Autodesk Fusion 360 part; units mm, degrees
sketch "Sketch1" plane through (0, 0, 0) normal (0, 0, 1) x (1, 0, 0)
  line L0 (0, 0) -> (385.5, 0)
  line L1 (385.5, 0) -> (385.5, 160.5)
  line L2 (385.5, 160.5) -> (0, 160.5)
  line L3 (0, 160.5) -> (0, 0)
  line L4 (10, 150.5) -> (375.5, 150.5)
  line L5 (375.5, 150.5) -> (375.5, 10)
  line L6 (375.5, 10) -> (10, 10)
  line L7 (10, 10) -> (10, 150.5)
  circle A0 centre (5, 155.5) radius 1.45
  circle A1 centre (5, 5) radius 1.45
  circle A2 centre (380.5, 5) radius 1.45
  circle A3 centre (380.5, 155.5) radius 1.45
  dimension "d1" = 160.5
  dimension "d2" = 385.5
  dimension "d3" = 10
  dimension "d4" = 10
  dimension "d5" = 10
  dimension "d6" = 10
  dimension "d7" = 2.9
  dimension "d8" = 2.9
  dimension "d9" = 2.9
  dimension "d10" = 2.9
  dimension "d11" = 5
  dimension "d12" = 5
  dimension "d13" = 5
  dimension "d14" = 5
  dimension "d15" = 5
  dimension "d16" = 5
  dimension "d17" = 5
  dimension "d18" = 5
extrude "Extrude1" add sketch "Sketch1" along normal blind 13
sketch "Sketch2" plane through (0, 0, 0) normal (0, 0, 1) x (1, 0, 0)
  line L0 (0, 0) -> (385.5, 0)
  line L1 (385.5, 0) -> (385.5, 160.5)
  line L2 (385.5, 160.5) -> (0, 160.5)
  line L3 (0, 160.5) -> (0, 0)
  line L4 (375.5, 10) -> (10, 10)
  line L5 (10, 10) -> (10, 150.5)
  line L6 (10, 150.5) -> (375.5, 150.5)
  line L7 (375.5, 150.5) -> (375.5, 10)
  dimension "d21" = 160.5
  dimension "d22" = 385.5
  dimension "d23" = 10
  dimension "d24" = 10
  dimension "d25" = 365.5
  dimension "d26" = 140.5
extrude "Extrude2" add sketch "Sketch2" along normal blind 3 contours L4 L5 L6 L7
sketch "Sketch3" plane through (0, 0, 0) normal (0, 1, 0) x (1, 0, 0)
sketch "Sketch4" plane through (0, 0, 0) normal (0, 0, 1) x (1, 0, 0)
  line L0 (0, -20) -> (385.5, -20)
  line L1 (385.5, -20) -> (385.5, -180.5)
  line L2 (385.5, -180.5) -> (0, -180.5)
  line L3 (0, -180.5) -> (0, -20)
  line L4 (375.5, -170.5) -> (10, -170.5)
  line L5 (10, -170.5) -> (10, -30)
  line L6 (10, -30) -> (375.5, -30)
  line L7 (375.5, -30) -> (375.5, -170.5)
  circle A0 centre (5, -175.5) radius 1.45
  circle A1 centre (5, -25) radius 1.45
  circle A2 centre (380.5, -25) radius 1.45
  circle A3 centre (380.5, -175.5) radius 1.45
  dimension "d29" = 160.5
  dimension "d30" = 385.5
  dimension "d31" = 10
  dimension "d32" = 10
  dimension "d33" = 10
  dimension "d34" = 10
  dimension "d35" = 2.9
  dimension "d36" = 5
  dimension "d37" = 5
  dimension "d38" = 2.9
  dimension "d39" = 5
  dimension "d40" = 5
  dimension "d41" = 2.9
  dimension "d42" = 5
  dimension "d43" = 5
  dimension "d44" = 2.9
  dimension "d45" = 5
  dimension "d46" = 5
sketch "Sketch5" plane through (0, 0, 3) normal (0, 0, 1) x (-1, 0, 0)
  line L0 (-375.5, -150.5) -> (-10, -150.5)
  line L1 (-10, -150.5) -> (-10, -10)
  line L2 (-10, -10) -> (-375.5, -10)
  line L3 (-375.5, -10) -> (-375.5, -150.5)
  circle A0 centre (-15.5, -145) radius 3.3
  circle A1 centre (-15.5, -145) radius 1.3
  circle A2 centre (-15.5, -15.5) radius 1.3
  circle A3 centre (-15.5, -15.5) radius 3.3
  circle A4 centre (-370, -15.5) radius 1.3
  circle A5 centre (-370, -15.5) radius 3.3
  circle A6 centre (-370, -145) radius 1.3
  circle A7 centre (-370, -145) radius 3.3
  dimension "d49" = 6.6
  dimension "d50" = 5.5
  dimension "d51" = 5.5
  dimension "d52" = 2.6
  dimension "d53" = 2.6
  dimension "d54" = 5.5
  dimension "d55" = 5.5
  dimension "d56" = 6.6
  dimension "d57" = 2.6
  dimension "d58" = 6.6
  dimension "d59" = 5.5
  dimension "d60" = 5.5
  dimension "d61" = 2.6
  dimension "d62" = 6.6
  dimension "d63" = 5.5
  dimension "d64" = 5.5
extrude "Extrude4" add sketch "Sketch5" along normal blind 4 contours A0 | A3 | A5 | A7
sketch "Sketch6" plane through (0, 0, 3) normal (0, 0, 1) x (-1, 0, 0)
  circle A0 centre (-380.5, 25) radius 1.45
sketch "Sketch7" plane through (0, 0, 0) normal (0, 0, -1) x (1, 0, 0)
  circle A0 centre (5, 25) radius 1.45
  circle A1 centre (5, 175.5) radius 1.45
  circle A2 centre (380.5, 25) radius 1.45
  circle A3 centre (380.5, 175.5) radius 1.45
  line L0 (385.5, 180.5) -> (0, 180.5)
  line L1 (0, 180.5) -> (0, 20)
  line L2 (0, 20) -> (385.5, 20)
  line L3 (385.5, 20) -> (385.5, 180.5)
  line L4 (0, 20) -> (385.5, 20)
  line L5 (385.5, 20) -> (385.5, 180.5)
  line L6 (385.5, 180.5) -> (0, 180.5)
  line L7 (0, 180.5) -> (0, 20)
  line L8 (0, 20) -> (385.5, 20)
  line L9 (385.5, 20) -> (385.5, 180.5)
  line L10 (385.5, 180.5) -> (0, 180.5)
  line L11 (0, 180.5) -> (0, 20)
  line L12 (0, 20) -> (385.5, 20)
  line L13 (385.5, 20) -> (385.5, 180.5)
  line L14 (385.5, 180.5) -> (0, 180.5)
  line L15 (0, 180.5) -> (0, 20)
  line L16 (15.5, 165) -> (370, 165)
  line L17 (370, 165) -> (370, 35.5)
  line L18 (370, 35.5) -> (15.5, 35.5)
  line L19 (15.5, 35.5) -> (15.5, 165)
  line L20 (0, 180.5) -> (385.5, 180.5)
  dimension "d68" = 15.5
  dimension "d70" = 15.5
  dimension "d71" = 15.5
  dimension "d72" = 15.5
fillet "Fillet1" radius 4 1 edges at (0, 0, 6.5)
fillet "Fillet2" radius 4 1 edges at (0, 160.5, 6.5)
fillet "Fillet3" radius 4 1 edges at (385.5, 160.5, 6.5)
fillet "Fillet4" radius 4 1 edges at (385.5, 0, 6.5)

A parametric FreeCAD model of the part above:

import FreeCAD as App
import Part
import Sketcher
Q = App.Units.Quantity


def edges_at(feature, points):
    """Names of the edges that pass closest to the given points."""
    edges = feature.Shape.Edges
    near = lambda p: min(range(len(edges)), key=lambda i: edges[i].distToShape(Part.Vertex(*p))[0])
    return sorted({f"Edge{near(p) + 1}" for p in points})


def add_polygon(sketch, points):
    """Adds a closed chain of lines whose ends are joined by coincident constraints."""
    first, n = sketch.GeometryCount, len(points)
    for a, b in zip(points, points[1:] + points[:1]):
        sketch.addGeometry(Part.LineSegment(App.Vector(*a, 0), App.Vector(*b, 0)), False)
    for i in range(n):
        sketch.addConstraint(Sketcher.Constraint("Coincident", first + i, 2, first + (i + 1) % n, 1))

doc = App.newDocument("Part")
body = doc.addObject("PartDesign::Body", "Body")

# Sketch on XY plane
sketch1 = body.newObject("Sketcher::SketchObject", "Sketch")
sketch1.AttachmentSupport = (doc.getObject("XY_Plane"), [""])
sketch1.MapMode = "FlatFace"
add_polygon(sketch1, [(0, 160.5), (0, 0), (385.5, 0), (385.5, 160.5)])  # lines 0-3
sketch1.addGeometry(Part.Circle(App.Vector(5, 5, 0), App.Vector(0, 0, 1), 1.45), False)  # 4
sketch1.addGeometry(Part.Circle(App.Vector(380.5, 5, 0), App.Vector(0, 0, 1), 1.45), False)  # 5
sketch1.addGeometry(Part.Circle(App.Vector(5, 155.5, 0), App.Vector(0, 0, 1), 1.45), False)  # 6
add_polygon(sketch1, [(10, 10), (10, 150.5), (375.5, 150.5), (375.5, 10)])  # lines 7-10
sketch1.addGeometry(Part.Circle(App.Vector(380.5, 155.5, 0), App.Vector(0, 0, 1), 1.45), False)  # 11
sketch1.addConstraint(Sketcher.Constraint("Vertical", 0))
sketch1.addConstraint(Sketcher.Constraint("Horizontal", 1))
sketch1.addConstraint(Sketcher.Constraint("Vertical", 2))
sketch1.addConstraint(Sketcher.Constraint("Horizontal", 3))
sketch1.addConstraint(Sketcher.Constraint("Vertical", 7))
sketch1.addConstraint(Sketcher.Constraint("Horizontal", 8))
sketch1.addConstraint(Sketcher.Constraint("Vertical", 9))
sketch1.addConstraint(Sketcher.Constraint("Horizontal", 10))
sketch1.addConstraint(Sketcher.Constraint("Coincident", 0, 2, -1, 1))
sketch1.addConstraint(Sketcher.Constraint("Equal", 4, 5))
sketch1.addConstraint(Sketcher.Constraint("Equal", 5, 6))
sketch1.addConstraint(Sketcher.Constraint("Equal", 6, 11))
sketch1.addConstraint(Sketcher.Constraint("Horizontal", 4, 3, 5, 3))
sketch1.addConstraint(Sketcher.Constraint("Horizontal", 6, 3, 11, 3))
sketch1.addConstraint(Sketcher.Constraint("Vertical", 4, 3, 6, 3))
sketch1.addConstraint(Sketcher.Constraint("Vertical", 5, 3, 11, 3))
sketch1.addConstraint(Sketcher.Constraint("Diameter", 4, Q("2.9 mm")))
sketch1.addConstraint(Sketcher.Constraint("DistanceX", 1, 1, 1, 2, Q("385.5 mm")))
sketch1.addConstraint(Sketcher.Constraint("DistanceY", 0, 2, 0, 1, Q("160.5 mm")))
sketch1.addConstraint(Sketcher.Constraint("DistanceX", -1, 1, 4, 3, Q("5 mm")))
sketch1.addConstraint(Sketcher.Constraint("DistanceY", -1, 1, 4, 3, Q("5 mm")))
sketch1.addConstraint(Sketcher.Constraint("DistanceX", -1, 1, 7, 2, Q("10 mm")))
sketch1.addConstraint(Sketcher.Constraint("DistanceY", -1, 1, 9, 2, Q("10 mm")))
sketch1.addConstraint(Sketcher.Constraint("DistanceX", 5, 3, 1, 2, Q("5 mm")))
sketch1.addConstraint(Sketcher.Constraint("DistanceY", 11, 3, 2, 2, Q("5 mm")))
sketch1.addConstraint(Sketcher.Constraint("DistanceY", 7, 2, 6, 3, Q("5 mm")))
sketch1.addConstraint(Sketcher.Constraint("DistanceX", 8, 2, 11, 3, Q("5 mm")))
pad1 = body.newObject("PartDesign::Pad", "Pad")
pad1.Profile = sketch1
pad1.Length = 13

# Sketch on XY plane
sketch2 = body.newObject("Sketcher::SketchObject", "Sketch001")
sketch2.AttachmentSupport = (doc.getObject("XY_Plane"), [""])
sketch2.MapMode = "FlatFace"
add_polygon(sketch2, [(10, 10), (375.5, 10), (375.5, 150.5), (10, 150.5)])  # lines 0-3
sketch2.addConstraint(Sketcher.Constraint("Horizontal", 0))
sketch2.addConstraint(Sketcher.Constraint("Vertical", 1))
sketch2.addConstraint(Sketcher.Constraint("Horizontal", 2))
sketch2.addConstraint(Sketcher.Constraint("Vertical", 3))
sketch2.addConstraint(Sketcher.Constraint("DistanceX", 0, 1, 0, 2, Q("365.5 mm")))
sketch2.addConstraint(Sketcher.Constraint("DistanceY", 1, 1, 1, 2, Q("140.5 mm")))
sketch2.addConstraint(Sketcher.Constraint("DistanceY", -1, 1, 0, 2, Q("10 mm")))
sketch2.addConstraint(Sketcher.Constraint("DistanceX", -1, 1, 2, 2, Q("10 mm")))
pad2 = body.newObject("PartDesign::Pad", "Pad001")
pad2.Profile = sketch2
pad2.Length = 3

# Sketch on XY plane
sketch3 = body.newObject("Sketcher::SketchObject", "Sketch002")
sketch3.AttachmentSupport = (doc.getObject("XY_Plane"), [""])
sketch3.MapMode = "FlatFace"
sketch3.AttachmentOffset = App.Placement(App.Vector(0, 0, 3), App.Rotation())
sketch3.addGeometry(Part.Circle(App.Vector(15.5, 145, 0), App.Vector(0, 0, 1), 3.3), False)
sketch3.addGeometry(Part.Circle(App.Vector(15.5, 145, 0), App.Vector(0, 0, 1), 1.3), False)
sketch3.addGeometry(Part.Circle(App.Vector(15.5, 15.5, 0), App.Vector(0, 0, 1), 3.3), False)
sketch3.addGeometry(Part.Circle(App.Vector(15.5, 15.5, 0), App.Vector(0, 0, 1), 1.3), False)
sketch3.addGeometry(Part.Circle(App.Vector(370, 15.5, 0), App.Vector(0, 0, 1), 3.3), False)
sketch3.addGeometry(Part.Circle(App.Vector(370, 15.5, 0), App.Vector(0, 0, 1), 1.3), False)
sketch3.addGeometry(Part.Circle(App.Vector(370, 145, 0), App.Vector(0, 0, 1), 3.3), False)
sketch3.addGeometry(Part.Circle(App.Vector(370, 145, 0), App.Vector(0, 0, 1), 1.3), False)
sketch3.addConstraint(Sketcher.Constraint("Coincident", 1, 3, 0, 3))
sketch3.addConstraint(Sketcher.Constraint("Coincident", 3, 3, 2, 3))
sketch3.addConstraint(Sketcher.Constraint("Coincident", 5, 3, 4, 3))
sketch3.addConstraint(Sketcher.Constraint("Coincident", 7, 3, 6, 3))
sketch3.addConstraint(Sketcher.Constraint("Equal", 0, 2))
sketch3.addConstraint(Sketcher.Constraint("Equal", 1, 3))
sketch3.addConstraint(Sketcher.Constraint("Equal", 2, 4))
sketch3.addConstraint(Sketcher.Constraint("Equal", 3, 5))
sketch3.addConstraint(Sketcher.Constraint("Equal", 4, 6))
sketch3.addConstraint(Sketcher.Constraint("Equal", 5, 7))
sketch3.addConstraint(Sketcher.Constraint("Horizontal", 3, 3, 4, 3))
sketch3.addConstraint(Sketcher.Constraint("Horizontal", 1, 3, 6, 3))
sketch3.addConstraint(Sketcher.Constraint("Vertical", 1, 3, 2, 3))
sketch3.addConstraint(Sketcher.Constraint("Vertical", 5, 3, 6, 3))
sketch3.addConstraint(Sketcher.Constraint("Diameter", 0, Q("6.6 mm")))
sketch3.addConstraint(Sketcher.Constraint("Diameter", 1, Q("2.6 mm")))
sketch3.addConstraint(Sketcher.Constraint("DistanceY", -1, 1, 0, 3, Q("145 mm")))
sketch3.addConstraint(Sketcher.Constraint("DistanceX", -1, 1, 4, 3, Q("370 mm")))
sketch3.addConstraint(Sketcher.Constraint("DistanceX", -1, 1, 0, 3, Q("15.5 mm")))
sketch3.addConstraint(Sketcher.Constraint("DistanceY", -1, 1, 2, 3, Q("15.5 mm")))
pad3 = body.newObject("PartDesign::Pad", "Pad002")
pad3.Profile = sketch3
pad3.Length = 4
doc.recompute()

fillet = body.newObject("PartDesign::Fillet", "Fillet")
fillet.Base = (pad3, edges_at(pad3, [(0, 0, 6.5)]))
fillet.Radius = 4
doc.recompute()

fillet2 = body.newObject("PartDesign::Fillet", "Fillet001")
fillet2.Base = (fillet, edges_at(fillet, [(0, 160.5, 6.5)]))
fillet2.Radius = 4
doc.recompute()

fillet3 = body.newObject("PartDesign::Fillet", "Fillet002")
fillet3.Base = (fillet2, edges_at(fillet2, [(385.5, 160.5, 6.5)]))
fillet3.Radius = 4
doc.recompute()

fillet4 = body.newObject("PartDesign::Fillet", "Fillet003")
fillet4.Base = (fillet3, edges_at(fillet3, [(385.5, 0, 6.5)]))
fillet4.Radius = 4

doc.recompute()
